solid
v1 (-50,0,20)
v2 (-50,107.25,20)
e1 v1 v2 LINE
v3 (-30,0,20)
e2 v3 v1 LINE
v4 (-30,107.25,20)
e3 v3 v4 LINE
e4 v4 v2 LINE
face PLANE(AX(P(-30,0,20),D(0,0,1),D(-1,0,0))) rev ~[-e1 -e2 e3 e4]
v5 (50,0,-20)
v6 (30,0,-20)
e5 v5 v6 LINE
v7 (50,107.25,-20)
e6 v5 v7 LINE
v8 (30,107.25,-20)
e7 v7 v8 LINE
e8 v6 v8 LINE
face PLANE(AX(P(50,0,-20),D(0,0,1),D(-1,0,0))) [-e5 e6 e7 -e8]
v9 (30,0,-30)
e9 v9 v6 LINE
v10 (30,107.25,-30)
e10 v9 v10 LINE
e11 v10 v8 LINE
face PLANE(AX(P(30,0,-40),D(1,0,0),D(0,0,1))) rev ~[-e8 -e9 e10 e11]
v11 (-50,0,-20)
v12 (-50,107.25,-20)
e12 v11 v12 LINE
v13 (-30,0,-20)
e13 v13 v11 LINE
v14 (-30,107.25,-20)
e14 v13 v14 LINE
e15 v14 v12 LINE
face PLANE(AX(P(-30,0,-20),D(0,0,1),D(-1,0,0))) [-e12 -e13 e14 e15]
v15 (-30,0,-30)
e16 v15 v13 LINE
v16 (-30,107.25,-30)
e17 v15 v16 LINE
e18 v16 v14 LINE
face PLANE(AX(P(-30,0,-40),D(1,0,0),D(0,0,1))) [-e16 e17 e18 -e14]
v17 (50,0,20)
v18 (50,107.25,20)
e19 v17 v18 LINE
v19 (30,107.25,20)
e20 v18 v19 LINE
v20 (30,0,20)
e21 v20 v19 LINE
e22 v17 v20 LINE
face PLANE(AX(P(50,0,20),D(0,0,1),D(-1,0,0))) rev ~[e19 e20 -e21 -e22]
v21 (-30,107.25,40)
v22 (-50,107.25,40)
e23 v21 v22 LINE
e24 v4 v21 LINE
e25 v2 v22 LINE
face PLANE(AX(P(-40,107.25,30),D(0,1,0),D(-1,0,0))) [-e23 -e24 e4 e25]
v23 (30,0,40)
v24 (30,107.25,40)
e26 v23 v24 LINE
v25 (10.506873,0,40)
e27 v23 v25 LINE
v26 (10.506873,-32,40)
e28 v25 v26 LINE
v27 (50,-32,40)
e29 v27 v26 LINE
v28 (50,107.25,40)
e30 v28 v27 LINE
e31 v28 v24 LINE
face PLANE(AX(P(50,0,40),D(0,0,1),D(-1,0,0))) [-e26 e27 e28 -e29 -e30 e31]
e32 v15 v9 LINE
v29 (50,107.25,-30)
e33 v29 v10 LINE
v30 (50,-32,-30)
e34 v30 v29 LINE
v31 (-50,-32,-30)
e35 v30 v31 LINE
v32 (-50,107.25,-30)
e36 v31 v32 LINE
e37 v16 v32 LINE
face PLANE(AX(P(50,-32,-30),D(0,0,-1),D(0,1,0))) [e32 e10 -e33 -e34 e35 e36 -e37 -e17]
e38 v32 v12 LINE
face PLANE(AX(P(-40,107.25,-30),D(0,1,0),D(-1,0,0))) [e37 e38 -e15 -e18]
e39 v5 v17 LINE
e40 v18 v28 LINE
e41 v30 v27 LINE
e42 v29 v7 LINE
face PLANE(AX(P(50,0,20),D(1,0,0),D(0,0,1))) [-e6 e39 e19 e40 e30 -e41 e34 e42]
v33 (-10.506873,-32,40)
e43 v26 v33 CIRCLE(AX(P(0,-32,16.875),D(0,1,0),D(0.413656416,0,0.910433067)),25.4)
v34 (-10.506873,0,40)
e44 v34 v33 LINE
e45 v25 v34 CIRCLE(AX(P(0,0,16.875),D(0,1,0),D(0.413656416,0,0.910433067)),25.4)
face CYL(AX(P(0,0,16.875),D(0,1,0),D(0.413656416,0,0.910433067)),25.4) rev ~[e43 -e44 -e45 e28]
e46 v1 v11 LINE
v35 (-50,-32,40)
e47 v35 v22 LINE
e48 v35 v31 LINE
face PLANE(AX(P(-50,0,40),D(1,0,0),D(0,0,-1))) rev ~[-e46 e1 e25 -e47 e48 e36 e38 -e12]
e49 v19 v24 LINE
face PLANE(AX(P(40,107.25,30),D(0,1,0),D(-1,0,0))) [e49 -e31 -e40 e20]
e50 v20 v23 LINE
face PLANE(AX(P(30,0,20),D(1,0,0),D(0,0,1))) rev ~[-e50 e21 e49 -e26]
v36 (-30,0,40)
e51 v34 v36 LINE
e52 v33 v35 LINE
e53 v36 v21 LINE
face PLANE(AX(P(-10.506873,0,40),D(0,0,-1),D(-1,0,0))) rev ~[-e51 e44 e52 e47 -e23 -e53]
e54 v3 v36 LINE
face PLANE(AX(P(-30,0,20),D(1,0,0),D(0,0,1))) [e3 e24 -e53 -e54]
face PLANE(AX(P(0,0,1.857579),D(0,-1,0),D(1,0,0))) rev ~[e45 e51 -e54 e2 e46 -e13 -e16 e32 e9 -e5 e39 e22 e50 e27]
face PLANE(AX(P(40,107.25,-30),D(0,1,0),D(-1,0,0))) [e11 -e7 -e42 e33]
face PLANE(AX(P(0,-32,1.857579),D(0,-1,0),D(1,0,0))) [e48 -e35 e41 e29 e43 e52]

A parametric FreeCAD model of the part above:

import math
import FreeCAD as App
import Part
import Sketcher

V = App.Vector
Q = App.Units.Quantity

doc = App.newDocument("Part")
body = doc.addObject("PartDesign::Body", "Body")

sketch1 = body.newObject("Sketcher::SketchObject", "Sketch")
sketch1.AttachmentSupport = (doc.getObject("XZ_Plane"), [""])
sketch1.MapMode = "FlatFace"
sketch1.addGeometry([
    Part.LineSegment(V(50, -40, 0), V(50, 40, 0)),
    Part.LineSegment(V(50, 40, 0), V(11, 40, 0)),
    Part.ArcOfCircle(Part.Circle(V(0, 17, 0), V(0, 0, 1), 25), math.radians(114), math.radians(426)),
    Part.LineSegment(V(-11, 40, 0), V(-50, 40, 0)),
    Part.LineSegment(V(-50, 40, 0), V(-50, -40, 0)),
    Part.LineSegment(V(-50, -40, 0), V(50, -40, 0)),
], False)
sketch1.addConstraint([
    Sketcher.Constraint("Coincident", 0, 2, 1, 1),
    Sketcher.Constraint("Coincident", 1, 2, 2, 2),
    Sketcher.Constraint("Coincident", 2, 1, 3, 1),
    Sketcher.Constraint("Coincident", 3, 2, 4, 1),
    Sketcher.Constraint("Coincident", 4, 2, 5, 1),
    Sketcher.Constraint("Coincident", 5, 2, 0, 1),
    Sketcher.Constraint("Vertical", 0),
    Sketcher.Constraint("Horizontal", 1),
    Sketcher.Constraint("Horizontal", 3),
    Sketcher.Constraint("Vertical", 4),
    Sketcher.Constraint("Horizontal", 5),
    Sketcher.Constraint("Symmetric", 0, 2, 4, 2, -1, 1),
    Sketcher.Constraint("Symmetric", 1, 2, 2, 1, -2),
    Sketcher.Constraint("Radius", 2, Q("25.4 mm")),
    Sketcher.Constraint("DistanceX", 5, 1, 5, 2, Q("100 mm")),
    Sketcher.Constraint("DistanceY", 0, 1, 0, 2, Q("80 mm")),
    Sketcher.Constraint("DistanceY", -1, 1, 2, 3, Q("16.875 mm")),
])
pad1 = body.newObject("PartDesign::Pad", "Pad")
pad1.Profile = sketch1
pad1.Length = 32

sketch2 = body.newObject("Sketcher::SketchObject", "Sketch001")
sketch2.AttachmentSupport = (doc.getObject("XZ_Plane"), [""])
sketch2.MapMode = "FlatFace"
sketch2.addGeometry([
    Part.LineSegment(V(50, 40, 0), V(50, 20, 0)),
    Part.LineSegment(V(50, 20, 0), V(30, 20, 0)),
    Part.LineSegment(V(30, 20, 0), V(30, 40, 0)),
    Part.LineSegment(V(30, 40, 0), V(50, 40, 0)),
    Part.LineSegment(V(-30, 40, 0), V(-30, 20, 0)),
    Part.LineSegment(V(-30, 20, 0), V(-50, 20, 0)),
    Part.LineSegment(V(-50, 20, 0), V(-50, 40, 0)),
    Part.LineSegment(V(-50, 40, 0), V(-30, 40, 0)),
    Part.LineSegment(V(-30, -20, 0), V(-30, -40, 0)),
    Part.LineSegment(V(-30, -40, 0), V(-50, -40, 0)),
    Part.LineSegment(V(-50, -40, 0), V(-50, -20, 0)),
    Part.LineSegment(V(-50, -20, 0), V(-30, -20, 0)),
    Part.LineSegment(V(50, -20, 0), V(50, -40, 0)),
    Part.LineSegment(V(50, -40, 0), V(30, -40, 0)),
    Part.LineSegment(V(30, -40, 0), V(30, -20, 0)),
    Part.LineSegment(V(30, -20, 0), V(50, -20, 0)),
], False)
sketch2.addConstraint([
    Sketcher.Constraint("Coincident", 0, 2, 1, 1),
    Sketcher.Constraint("Coincident", 1, 2, 2, 1),
    Sketcher.Constraint("Coincident", 2, 2, 3, 1),
    Sketcher.Constraint("Coincident", 3, 2, 0, 1),
    Sketcher.Constraint("Coincident", 4, 2, 5, 1),
    Sketcher.Constraint("Coincident", 5, 2, 6, 1),
    Sketcher.Constraint("Coincident", 6, 2, 7, 1),
    Sketcher.Constraint("Coincident", 7, 2, 4, 1),
    Sketcher.Constraint("Coincident", 8, 2, 9, 1),
    Sketcher.Constraint("Coincident", 9, 2, 10, 1),
    Sketcher.Constraint("Coincident", 10, 2, 11, 1),
    Sketcher.Constraint("Coincident", 11, 2, 8, 1),
    Sketcher.Constraint("Coincident", 12, 2, 13, 1),
    Sketcher.Constraint("Coincident", 13, 2, 14, 1),
    Sketcher.Constraint("Coincident", 14, 2, 15, 1),
    Sketcher.Constraint("Coincident", 15, 2, 12, 1),
    Sketcher.Constraint("Vertical", 0),
    Sketcher.Constraint("Horizontal", 1),
    Sketcher.Constraint("Vertical", 2),
    Sketcher.Constraint("Horizontal", 3),
    Sketcher.Constraint("Vertical", 4),
    Sketcher.Constraint("Horizontal", 5),
    Sketcher.Constraint("Vertical", 6),
    Sketcher.Constraint("Horizontal", 7),
    Sketcher.Constraint("Vertical", 8),
    Sketcher.Constraint("Horizontal", 9),
    Sketcher.Constraint("Vertical", 10),
    Sketcher.Constraint("Horizontal", 11),
    Sketcher.Constraint("Vertical", 12),
    Sketcher.Constraint("Horizontal", 13),
    Sketcher.Constraint("Vertical", 14),
    Sketcher.Constraint("Horizontal", 15),
    Sketcher.Constraint("Symmetric", 2, 2, 8, 2, -1, 1),
    Sketcher.Constraint("Symmetric", 0, 2, 10, 2, -1, 1),
    Sketcher.Constraint("Symmetric", 6, 2, 12, 2, -1, 1),
    Sketcher.Constraint("Symmetric", 4, 2, 14, 2, -1, 1),
    Sketcher.Constraint("Symmetric", 1, 2, 4, 2, -2),
    Sketcher.Constraint("Symmetric", 3, 2, 6, 2, -2),
    Sketcher.Constraint("Equal", 15, 0),
    Sketcher.Constraint("DistanceX", 1, 2, 1, 1, Q("20 mm")),
    Sketcher.Constraint("DistanceX", -1, 1, 0, 2, Q("50 mm")),
    Sketcher.Constraint("DistanceY", -1, 1, 0, 2, Q("20 mm")),
])
pad2 = body.newObject("PartDesign::Pad", "Pad001")
pad2.Profile = sketch2
pad2.Length = 107.25
pad2.Reversed = True

sketch3 = body.newObject("Sketcher::SketchObject", "Sketch002")
sketch3.AttachmentSupport = (doc.getObject("YZ_Plane"), [""])
sketch3.MapMode = "FlatFace"
sketch3.AttachmentOffset = App.Placement(V(0, 0, 50), App.Rotation())
sketch3.addGeometry([
    Part.LineSegment(V(-32, -30, 0), V(-32, -40, 0)),
    Part.LineSegment(V(-32, -40, 0), V(107, -40, 0)),
    Part.LineSegment(V(107, -40, 0), V(107, -30, 0)),
    Part.LineSegment(V(107, -30, 0), V(-32, -30, 0)),
], False)
sketch3.addConstraint([
    Sketcher.Constraint("Coincident", 0, 2, 1, 1),
    Sketcher.Constraint("Coincident", 1, 2, 2, 1),
    Sketcher.Constraint("Coincident", 2, 2, 3, 1),
    Sketcher.Constraint("Coincident", 3, 2, 0, 1),
    Sketcher.Constraint("Vertical", 0),
    Sketcher.Constraint("Horizontal", 1),
    Sketcher.Constraint("Vertical", 2),
    Sketcher.Constraint("Horizontal", 3),
    Sketcher.Constraint("DistanceY", 0, 2, 0, 1, Q("10 mm")),
    Sketcher.Constraint("DistanceX", 0, 2, -1, 1, Q("32 mm")),
    Sketcher.Constraint("DistanceY", 0, 2, -1, 1, Q("40 mm")),
    Sketcher.Constraint("DistanceX", 1, 1, 1, 2, Q("139.25 mm")),
])
pocket1 = body.newObject("PartDesign::Pocket", "Pocket")
pocket1.Profile = sketch3
pocket1.Length = 150

doc.recompute()
